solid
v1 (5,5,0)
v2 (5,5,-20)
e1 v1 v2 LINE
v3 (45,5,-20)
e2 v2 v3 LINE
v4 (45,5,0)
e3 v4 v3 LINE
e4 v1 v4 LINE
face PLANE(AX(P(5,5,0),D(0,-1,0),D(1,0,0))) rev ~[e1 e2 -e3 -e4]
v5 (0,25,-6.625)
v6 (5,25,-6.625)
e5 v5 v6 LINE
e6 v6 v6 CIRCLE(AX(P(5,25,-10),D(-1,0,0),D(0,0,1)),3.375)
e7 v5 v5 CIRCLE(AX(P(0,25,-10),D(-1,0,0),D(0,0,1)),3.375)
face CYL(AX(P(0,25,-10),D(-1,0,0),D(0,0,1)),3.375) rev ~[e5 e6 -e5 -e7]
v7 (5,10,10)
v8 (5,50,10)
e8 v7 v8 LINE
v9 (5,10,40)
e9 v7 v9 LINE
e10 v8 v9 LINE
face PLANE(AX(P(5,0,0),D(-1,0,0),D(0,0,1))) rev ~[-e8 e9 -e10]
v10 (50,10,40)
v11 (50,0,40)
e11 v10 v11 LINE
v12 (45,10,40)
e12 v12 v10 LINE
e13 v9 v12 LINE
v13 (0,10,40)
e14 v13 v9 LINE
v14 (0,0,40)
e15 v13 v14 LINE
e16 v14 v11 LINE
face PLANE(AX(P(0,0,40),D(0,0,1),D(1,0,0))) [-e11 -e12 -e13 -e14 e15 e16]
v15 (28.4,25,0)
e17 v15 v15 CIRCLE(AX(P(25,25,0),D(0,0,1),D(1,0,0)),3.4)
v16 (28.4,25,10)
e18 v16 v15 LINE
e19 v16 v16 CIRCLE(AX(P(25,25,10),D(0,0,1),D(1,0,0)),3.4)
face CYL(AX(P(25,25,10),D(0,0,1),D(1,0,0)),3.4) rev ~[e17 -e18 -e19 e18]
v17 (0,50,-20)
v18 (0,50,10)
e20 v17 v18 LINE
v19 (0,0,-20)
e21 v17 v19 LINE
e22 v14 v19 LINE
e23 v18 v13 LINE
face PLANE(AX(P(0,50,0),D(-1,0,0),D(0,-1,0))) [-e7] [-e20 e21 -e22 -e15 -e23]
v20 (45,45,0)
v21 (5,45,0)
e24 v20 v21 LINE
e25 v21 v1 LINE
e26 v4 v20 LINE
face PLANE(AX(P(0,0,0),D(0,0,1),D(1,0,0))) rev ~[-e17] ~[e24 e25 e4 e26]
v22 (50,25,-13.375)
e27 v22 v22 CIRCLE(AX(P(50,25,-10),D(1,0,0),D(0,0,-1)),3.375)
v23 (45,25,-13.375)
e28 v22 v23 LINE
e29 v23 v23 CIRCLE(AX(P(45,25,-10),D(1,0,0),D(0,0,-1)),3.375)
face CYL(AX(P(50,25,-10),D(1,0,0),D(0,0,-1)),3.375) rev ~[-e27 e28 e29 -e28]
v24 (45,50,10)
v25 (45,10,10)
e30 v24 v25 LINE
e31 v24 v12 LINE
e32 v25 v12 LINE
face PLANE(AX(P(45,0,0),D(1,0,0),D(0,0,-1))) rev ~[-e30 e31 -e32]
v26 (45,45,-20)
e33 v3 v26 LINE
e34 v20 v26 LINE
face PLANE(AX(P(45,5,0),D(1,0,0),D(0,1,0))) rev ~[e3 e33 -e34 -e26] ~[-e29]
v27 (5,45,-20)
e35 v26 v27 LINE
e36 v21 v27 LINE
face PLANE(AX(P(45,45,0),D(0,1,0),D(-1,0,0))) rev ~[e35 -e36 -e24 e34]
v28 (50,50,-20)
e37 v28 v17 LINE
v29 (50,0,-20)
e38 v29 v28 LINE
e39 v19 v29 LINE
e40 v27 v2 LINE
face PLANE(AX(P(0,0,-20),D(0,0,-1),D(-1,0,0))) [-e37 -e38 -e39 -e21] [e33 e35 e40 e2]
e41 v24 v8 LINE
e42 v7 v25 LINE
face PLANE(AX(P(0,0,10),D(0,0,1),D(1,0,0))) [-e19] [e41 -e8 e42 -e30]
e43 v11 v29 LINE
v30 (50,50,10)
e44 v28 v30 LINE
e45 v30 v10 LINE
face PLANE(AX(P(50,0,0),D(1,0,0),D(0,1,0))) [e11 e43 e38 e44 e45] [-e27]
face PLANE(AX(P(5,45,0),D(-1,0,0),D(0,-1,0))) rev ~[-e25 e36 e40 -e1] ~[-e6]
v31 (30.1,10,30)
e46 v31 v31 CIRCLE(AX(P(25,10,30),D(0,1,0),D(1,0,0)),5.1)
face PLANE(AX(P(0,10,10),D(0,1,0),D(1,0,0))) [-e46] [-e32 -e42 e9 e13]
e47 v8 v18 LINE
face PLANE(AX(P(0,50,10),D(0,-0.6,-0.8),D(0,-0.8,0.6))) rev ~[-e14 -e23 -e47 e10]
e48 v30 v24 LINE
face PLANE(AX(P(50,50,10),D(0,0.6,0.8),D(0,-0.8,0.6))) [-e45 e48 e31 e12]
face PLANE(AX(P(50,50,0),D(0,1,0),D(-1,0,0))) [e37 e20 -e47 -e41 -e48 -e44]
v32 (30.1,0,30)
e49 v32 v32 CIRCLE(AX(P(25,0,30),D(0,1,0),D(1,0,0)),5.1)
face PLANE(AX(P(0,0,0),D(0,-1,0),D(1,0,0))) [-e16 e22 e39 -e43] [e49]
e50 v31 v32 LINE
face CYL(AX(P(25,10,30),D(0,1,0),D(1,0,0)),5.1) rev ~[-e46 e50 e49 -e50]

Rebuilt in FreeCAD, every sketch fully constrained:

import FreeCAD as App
import Part
import Sketcher
from FreeCAD import Vector
Q = App.Units.Quantity


def add_polygon(sketch, points):
    """Adds a closed chain of lines whose ends are joined by coincident constraints."""
    first, n = sketch.GeometryCount, len(points)
    for a, b in zip(points, points[1:] + points[:1]):
        sketch.addGeometry(Part.LineSegment(App.Vector(*a, 0), App.Vector(*b, 0)), False)
    for i in range(n):
        sketch.addConstraint(Sketcher.Constraint("Coincident", first + i, 2, first + (i + 1) % n, 1))

doc = App.newDocument("Part")
body = doc.addObject("PartDesign::Body", "Body")

# Sketch on XY plane
sketch1 = doc.addObject("Sketcher::SketchObject", "Sketch")
body.addObject(sketch1)
sketch1.AttachmentSupport = (doc.XY_Plane, [""])
sketch1.MapMode = "FlatFace"
add_polygon(sketch1, [(0, 0), (50, 0), (50, 50), (0, 50)])  # lines 0-3
sketch1.addConstraint(Sketcher.Constraint("Horizontal", 0))
sketch1.addConstraint(Sketcher.Constraint("Vertical", 1))
sketch1.addConstraint(Sketcher.Constraint("Horizontal", 2))
sketch1.addConstraint(Sketcher.Constraint("Vertical", 3))
sketch1.addConstraint(Sketcher.Constraint("Coincident", 3, 2, -1, 1))
sketch1.addConstraint(Sketcher.Constraint("Equal", 2, 1))
sketch1.addConstraint(Sketcher.Constraint("DistanceX", 0, 1, 0, 2, Q("50 mm")))
pad1 = doc.addObject("PartDesign::Pad", "Pad")
body.addObject(pad1)
pad1.Profile = sketch1
pad1.Length = 10

# Sketch on XY plane
sketch2 = doc.addObject("Sketcher::SketchObject", "Sketch001")
body.addObject(sketch2)
sketch2.AttachmentSupport = (doc.XY_Plane, [""])
sketch2.MapMode = "FlatFace"
sketch2.AttachmentOffset = App.Placement(Vector(0, 0, 10), App.Rotation())
add_polygon(sketch2, [(0, 10), (0, 0), (50, 0), (50, 10)])  # lines 0-3
sketch2.addConstraint(Sketcher.Constraint("Vertical", 0))
sketch2.addConstraint(Sketcher.Constraint("Horizontal", 1))
sketch2.addConstraint(Sketcher.Constraint("Vertical", 2))
sketch2.addConstraint(Sketcher.Constraint("Horizontal", 3))
sketch2.addConstraint(Sketcher.Constraint("Coincident", 0, 2, -1, 1))
sketch2.addConstraint(Sketcher.Constraint("DistanceY", 0, 2, 0, 1, Q("10 mm")))
sketch2.addConstraint(Sketcher.Constraint("DistanceX", 1, 1, 1, 2, Q("50 mm")))
pad2 = doc.addObject("PartDesign::Pad", "Pad001")
body.addObject(pad2)
pad2.Profile = sketch2
pad2.Length = 30

# Sketch on XY plane
sketch3 = doc.addObject("Sketcher::SketchObject", "Sketch002")
body.addObject(sketch3)
sketch3.AttachmentSupport = (doc.XY_Plane, [""])
sketch3.MapMode = "FlatFace"
sketch3.AttachmentOffset = App.Placement(Vector(0, 0, 10), App.Rotation())
sketch3.addGeometry(Part.Circle(Vector(25, 25, 0), Vector(0, 0, 1), 3.4), False)
sketch3.addConstraint(Sketcher.Constraint("Diameter", 0, Q("6.8 mm")))
sketch3.addConstraint(Sketcher.Constraint("DistanceX", -1, 1, 0, 3, Q("25 mm")))
sketch3.addConstraint(Sketcher.Constraint("DistanceY", -1, 1, 0, 3, Q("25 mm")))
pocket1 = doc.addObject("PartDesign::Pocket", "Pocket")
body.addObject(pocket1)
pocket1.Profile = sketch3
pocket1.Length = 10

# Sketch on XZ plane
sketch4 = doc.addObject("Sketcher::SketchObject", "Sketch003")
body.addObject(sketch4)
sketch4.AttachmentSupport = (doc.XZ_Plane, [""])
sketch4.MapMode = "FlatFace"
sketch4.AttachmentOffset = App.Placement(Vector(0, 0, -10), App.Rotation())
sketch4.addGeometry(Part.Circle(Vector(25, 30, 0), Vector(0, 0, 1), 5), False)
sketch4.addConstraint(Sketcher.Constraint("Diameter", 0, Q("10.2 mm")))
sketch4.addConstraint(Sketcher.Constraint("DistanceX", -1, 1, 0, 3, Q("25 mm")))
sketch4.addConstraint(Sketcher.Constraint("DistanceY", -1, 1, 0, 3, Q("30 mm")))
pocket2 = doc.addObject("PartDesign::Pocket", "Pocket001")
body.addObject(pocket2)
pocket2.Profile = sketch4
pocket2.Length = 10
pocket2.Reversed = True

# Sketch on YZ plane
sketch5 = doc.addObject("Sketcher::SketchObject", "Sketch004")
body.addObject(sketch5)
sketch5.AttachmentSupport = (doc.YZ_Plane, [""])
sketch5.MapMode = "FlatFace"
add_polygon(sketch5, [(50, 10), (10, 10), (10, 40)])  # lines 0-2
sketch5.addConstraint(Sketcher.Constraint("Horizontal", 0))
sketch5.addConstraint(Sketcher.Constraint("Vertical", 1))
sketch5.addConstraint(Sketcher.Constraint("DistanceX", 0, 2, 0, 1, Q("40 mm")))
sketch5.addConstraint(Sketcher.Constraint("DistanceY", 1, 1, 1, 2, Q("30 mm")))
sketch5.addConstraint(Sketcher.Constraint("DistanceX", -1, 1, 0, 2, Q("10 mm")))
sketch5.addConstraint(Sketcher.Constraint("DistanceY", -1, 1, 0, 2, Q("10 mm")))
pad3 = doc.addObject("PartDesign::Pad", "Pad002")
body.addObject(pad3)
pad3.Profile = sketch5
pad3.Length = 5

# Sketch on YZ plane
sketch6 = doc.addObject("Sketcher::SketchObject", "Sketch005")
body.addObject(sketch6)
sketch6.AttachmentSupport = (doc.YZ_Plane, [""])
sketch6.MapMode = "FlatFace"
sketch6.AttachmentOffset = App.Placement(Vector(0, 0, 50), App.Rotation())
add_polygon(sketch6, [(10, 10), (50, 10), (10, 40)])  # lines 0-2
sketch6.addConstraint(Sketcher.Constraint("Horizontal", 0))
sketch6.addConstraint(Sketcher.Constraint("Vertical", 2))
sketch6.addConstraint(Sketcher.Constraint("DistanceX", 0, 1, 0, 2, Q("40 mm")))
sketch6.addConstraint(Sketcher.Constraint("DistanceY", 2, 2, 2, 1, Q("30 mm")))
sketch6.addConstraint(Sketcher.Constraint("DistanceX", -1, 1, 0, 2, Q("50 mm")))
sketch6.addConstraint(Sketcher.Constraint("DistanceY", -1, 1, 0, 2, Q("10 mm")))
pad4 = doc.addObject("PartDesign::Pad", "Pad003")
body.addObject(pad4)
pad4.Profile = sketch6
pad4.Length = 5
pad4.Reversed = True

# Sketch on XY plane
sketch7 = doc.addObject("Sketcher::SketchObject", "Sketch006")
body.addObject(sketch7)
sketch7.AttachmentSupport = (doc.XY_Plane, [""])
sketch7.MapMode = "FlatFace"
add_polygon(sketch7, [(50, 50), (50, 0), (0, 0), (0, 50)])  # lines 0-3
add_polygon(sketch7, [(5, 45), (5, 5), (45, 5), (45, 45)])  # lines 4-7
sketch7.addConstraint(Sketcher.Constraint("Vertical", 0))
sketch7.addConstraint(Sketcher.Constraint("Horizontal", 1))
sketch7.addConstraint(Sketcher.Constraint("Vertical", 2))
sketch7.addConstraint(Sketcher.Constraint("Horizontal", 3))
sketch7.addConstraint(Sketcher.Constraint("Vertical", 4))
sketch7.addConstraint(Sketcher.Constraint("Horizontal", 5))
sketch7.addConstraint(Sketcher.Constraint("Vertical", 6))
sketch7.addConstraint(Sketcher.Constraint("Horizontal", 7))
sketch7.addConstraint(Sketcher.Constraint("Coincident", 1, 2, -1, 1))
sketch7.addConstraint(Sketcher.Constraint("Equal", 3, 0))
sketch7.addConstraint(Sketcher.Constraint("Equal", 7, 4))
sketch7.addConstraint(Sketcher.Constraint("DistanceX", 1, 2, 1, 1, Q("50 mm")))
sketch7.addConstraint(Sketcher.Constraint("DistanceX", 5, 1, 5, 2, Q("40 mm")))
sketch7.addConstraint(Sketcher.Constraint("DistanceX", -1, 1, 4, 2, Q("5 mm")))
sketch7.addConstraint(Sketcher.Constraint("DistanceY", -1, 1, 4, 2, Q("5 mm")))
pad5 = doc.addObject("PartDesign::Pad", "Pad004")
body.addObject(pad5)
pad5.Profile = sketch7
pad5.Length = 20
pad5.Reversed = True

# Sketch on YZ plane
sketch8 = doc.addObject("Sketcher::SketchObject", "Sketch007")
body.addObject(sketch8)
sketch8.AttachmentSupport = (doc.YZ_Plane, [""])
sketch8.MapMode = "FlatFace"
sketch8.AttachmentOffset = App.Placement(Vector(0, 0, 50), App.Rotation())
sketch8.addGeometry(Part.Circle(Vector(25, -10, 0), Vector(0, 0, 1), 3.4), False)
sketch8.addConstraint(Sketcher.Constraint("Diameter", 0, Q("6.75 mm")))
sketch8.addConstraint(Sketcher.Constraint("DistanceX", -1, 1, 0, 3, Q("25 mm")))
sketch8.addConstraint(Sketcher.Constraint("DistanceY", 0, 3, -1, 1, Q("10 mm")))
pocket3 = doc.addObject("PartDesign::Pocket", "Pocket002")
body.addObject(pocket3)
pocket3.Profile = sketch8
pocket3.Length = 5

# Sketch on YZ plane
sketch9 = doc.addObject("Sketcher::SketchObject", "Sketch008")
body.addObject(sketch9)
sketch9.AttachmentSupport = (doc.YZ_Plane, [""])
sketch9.MapMode = "FlatFace"
sketch9.addGeometry(Part.Circle(Vector(25, -10, 0), Vector(0, 0, 1), 3.4), False)
sketch9.addConstraint(Sketcher.Constraint("Diameter", 0, Q("6.75 mm")))
sketch9.addConstraint(Sketcher.Constraint("DistanceX", -1, 1, 0, 3, Q("25 mm")))
sketch9.addConstraint(Sketcher.Constraint("DistanceY", 0, 3, -1, 1, Q("10 mm")))
pocket4 = doc.addObject("PartDesign::Pocket", "Pocket003")
body.addObject(pocket4)
pocket4.Profile = sketch9
pocket4.Length = 5
pocket4.Reversed = True

doc.recompute()
